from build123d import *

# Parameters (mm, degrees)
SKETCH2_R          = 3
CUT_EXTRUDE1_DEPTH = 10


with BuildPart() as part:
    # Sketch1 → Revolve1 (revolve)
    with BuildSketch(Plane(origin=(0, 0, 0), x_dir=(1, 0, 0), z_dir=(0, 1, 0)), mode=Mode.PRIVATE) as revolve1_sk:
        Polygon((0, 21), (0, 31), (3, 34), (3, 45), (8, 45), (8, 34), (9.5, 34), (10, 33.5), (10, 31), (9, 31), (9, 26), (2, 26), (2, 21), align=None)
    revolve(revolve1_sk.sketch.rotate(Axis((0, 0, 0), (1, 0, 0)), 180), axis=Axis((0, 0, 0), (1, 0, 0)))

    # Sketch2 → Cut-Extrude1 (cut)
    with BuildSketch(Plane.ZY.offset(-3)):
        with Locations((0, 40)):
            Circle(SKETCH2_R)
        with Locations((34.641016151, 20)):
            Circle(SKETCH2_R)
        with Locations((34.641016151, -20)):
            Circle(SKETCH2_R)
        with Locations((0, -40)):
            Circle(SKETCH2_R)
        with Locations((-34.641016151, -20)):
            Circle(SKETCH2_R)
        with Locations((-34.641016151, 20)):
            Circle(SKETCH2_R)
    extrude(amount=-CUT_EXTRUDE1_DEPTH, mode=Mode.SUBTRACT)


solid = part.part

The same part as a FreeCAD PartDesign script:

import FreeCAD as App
import Part
import Sketcher
from FreeCAD import Vector
Q = App.Units.Quantity


def add_polygon(sketch, points):
    """Adds a closed chain of lines whose ends are joined by coincident constraints."""
    first, n = sketch.GeometryCount, len(points)
    for a, b in zip(points, points[1:] + points[:1]):
        sketch.addGeometry(Part.LineSegment(App.Vector(*a, 0), App.Vector(*b, 0)), False)
    for i in range(n):
        sketch.addConstraint(Sketcher.Constraint("Coincident", first + i, 2, first + (i + 1) % n, 1))

doc = App.newDocument("Part")
body = doc.addObject("PartDesign::Body", "Body")

# Sketch on XZ plane
sketch1 = body.newObject("Sketcher::SketchObject", "Sketch")
sketch1.AttachmentSupport = (doc.getObject("XZ_Plane"), [""])
sketch1.MapMode = "FlatFace"
add_polygon(sketch1, [(0, -31), (0, -21), (2, -21), (2, -26), (9, -26), (9, -31), (10, -31), (10, -33.5), (9.5, -34), (8, -34), (8, -45), (3, -45), (3, -34)])  # lines 0-12
sketch1.addConstraint(Sketcher.Constraint("Vertical", 0))
sketch1.addConstraint(Sketcher.Constraint("Horizontal", 1))
sketch1.addConstraint(Sketcher.Constraint("Vertical", 2))
sketch1.addConstraint(Sketcher.Constraint("Horizontal", 3))
sketch1.addConstraint(Sketcher.Constraint("Vertical", 4))
sketch1.addConstraint(Sketcher.Constraint("Horizontal", 5))
sketch1.addConstraint(Sketcher.Constraint("Vertical", 6))
sketch1.addConstraint(Sketcher.Constraint("Horizontal", 8))
sketch1.addConstraint(Sketcher.Constraint("Vertical", 9))
sketch1.addConstraint(Sketcher.Constraint("Horizontal", 10))
sketch1.addConstraint(Sketcher.Constraint("Vertical", 11))
sketch1.addConstraint(Sketcher.Constraint("PointOnObject", 0, 2, -2))
sketch1.addConstraint(Sketcher.Constraint("Perpendicular", 7, 12))
sketch1.addConstraint(Sketcher.Constraint("Horizontal", 8, 2, 11, 2))
sketch1.addConstraint(Sketcher.Constraint("Horizontal", 5, 2, 12, 2))
sketch1.addConstraint(Sketcher.Constraint("Equal", 10, 2))
sketch1.addConstraint(Sketcher.Constraint("Equal", 2, 4))
sketch1.addConstraint(Sketcher.Constraint("DistanceX", 1, 1, 1, 2, 2.0))
sketch1.addConstraint(Sketcher.Constraint("DistanceX", 3, 1, 3, 2, 7.0))
sketch1.addConstraint(Sketcher.Constraint("DistanceX", 5, 1, 5, 2, 1.0))
sketch1.addConstraint(Sketcher.Constraint("DistanceX", 10, 2, 10, 1, 5.0))
sketch1.addConstraint(Sketcher.Constraint("DistanceY", 9, 2, 9, 1, 11.0))
sketch1.addConstraint(Sketcher.Constraint("Angle", 7, Q("-135 deg")))
sketch1.addConstraint(Sketcher.Constraint("DistanceX", 8, 2, 8, 1, 1.5))
sketch1.addConstraint(Sketcher.Constraint("DistanceY", 6, 2, 6, 1, 2.5))
sketch1.addConstraint(Sketcher.Constraint("DistanceY", 0, 2, -1, 1, 21.0))
revolution = body.newObject("PartDesign::Revolution", "Revolution")
revolution.Profile = sketch1
revolution.ReferenceAxis = (sketch1, ["H_Axis"])
revolution.Angle = 360

# Sketch on YZ plane
sketch2 = body.newObject("Sketcher::SketchObject", "Sketch001")
sketch2.AttachmentSupport = (doc.getObject("YZ_Plane"), [""])
sketch2.MapMode = "FlatFace"
sketch2.AttachmentOffset = App.Placement(Vector(0, 0, 3), App.Rotation())
sketch2.addGeometry(Part.Circle(Vector(40, 0, 0), Vector(0, 0, 1), 3), False)
sketch2.addGeometry(Part.Circle(Vector(20, 34.6, 0), Vector(0, 0, 1), 3), False)
sketch2.addGeometry(Part.Circle(Vector(-20, 34.6, 0), Vector(0, 0, 1), 3), False)
sketch2.addGeometry(Part.Circle(Vector(-40, 0, 0), Vector(0, 0, 1), 3), False)
sketch2.addGeometry(Part.Circle(Vector(-20, -34.6, 0), Vector(0, 0, 1), 3), False)
sketch2.addGeometry(Part.Circle(Vector(20, -34.6, 0), Vector(0, 0, 1), 3), False)
sketch2.addConstraint(Sketcher.Constraint("Equal", 0, 1))
sketch2.addConstraint(Sketcher.Constraint("Equal", 1, 2))
sketch2.addConstraint(Sketcher.Constraint("Equal", 2, 3))
sketch2.addConstraint(Sketcher.Constraint("Equal", 3, 4))
sketch2.addConstraint(Sketcher.Constraint("Equal", 4, 5))
sketch2.addConstraint(Sketcher.Constraint("Symmetric", 0, 3, 3, 3, -1, 1))
sketch2.addConstraint(Sketcher.Constraint("Symmetric", 1, 3, 4, 3, -1, 1))
sketch2.addConstraint(Sketcher.Constraint("Symmetric", 2, 3, 5, 3, -1, 1))
sketch2.addConstraint(Sketcher.Constraint("Symmetric", 1, 3, 2, 3, -2))
sketch2.addConstraint(Sketcher.Constraint("PointOnObject", 0, 3, -1))
sketch2.addConstraint(Sketcher.Constraint("Diameter", 0, 6.0))
sketch2.addConstraint(Sketcher.Constraint("DistanceX", -1, 1, 0, 3, 40.0))
sketch2.addConstraint(Sketcher.Constraint("DistanceX", -1, 1, 1, 3, 20.0))
sketch2.addConstraint(Sketcher.Constraint("DistanceY", -1, 1, 1, 3, 34.641016))
pocket1 = body.newObject("PartDesign::Pocket", "Pocket")
pocket1.Profile = sketch2
pocket1.Length = 10
pocket1.Reversed = True

doc.recompute()
